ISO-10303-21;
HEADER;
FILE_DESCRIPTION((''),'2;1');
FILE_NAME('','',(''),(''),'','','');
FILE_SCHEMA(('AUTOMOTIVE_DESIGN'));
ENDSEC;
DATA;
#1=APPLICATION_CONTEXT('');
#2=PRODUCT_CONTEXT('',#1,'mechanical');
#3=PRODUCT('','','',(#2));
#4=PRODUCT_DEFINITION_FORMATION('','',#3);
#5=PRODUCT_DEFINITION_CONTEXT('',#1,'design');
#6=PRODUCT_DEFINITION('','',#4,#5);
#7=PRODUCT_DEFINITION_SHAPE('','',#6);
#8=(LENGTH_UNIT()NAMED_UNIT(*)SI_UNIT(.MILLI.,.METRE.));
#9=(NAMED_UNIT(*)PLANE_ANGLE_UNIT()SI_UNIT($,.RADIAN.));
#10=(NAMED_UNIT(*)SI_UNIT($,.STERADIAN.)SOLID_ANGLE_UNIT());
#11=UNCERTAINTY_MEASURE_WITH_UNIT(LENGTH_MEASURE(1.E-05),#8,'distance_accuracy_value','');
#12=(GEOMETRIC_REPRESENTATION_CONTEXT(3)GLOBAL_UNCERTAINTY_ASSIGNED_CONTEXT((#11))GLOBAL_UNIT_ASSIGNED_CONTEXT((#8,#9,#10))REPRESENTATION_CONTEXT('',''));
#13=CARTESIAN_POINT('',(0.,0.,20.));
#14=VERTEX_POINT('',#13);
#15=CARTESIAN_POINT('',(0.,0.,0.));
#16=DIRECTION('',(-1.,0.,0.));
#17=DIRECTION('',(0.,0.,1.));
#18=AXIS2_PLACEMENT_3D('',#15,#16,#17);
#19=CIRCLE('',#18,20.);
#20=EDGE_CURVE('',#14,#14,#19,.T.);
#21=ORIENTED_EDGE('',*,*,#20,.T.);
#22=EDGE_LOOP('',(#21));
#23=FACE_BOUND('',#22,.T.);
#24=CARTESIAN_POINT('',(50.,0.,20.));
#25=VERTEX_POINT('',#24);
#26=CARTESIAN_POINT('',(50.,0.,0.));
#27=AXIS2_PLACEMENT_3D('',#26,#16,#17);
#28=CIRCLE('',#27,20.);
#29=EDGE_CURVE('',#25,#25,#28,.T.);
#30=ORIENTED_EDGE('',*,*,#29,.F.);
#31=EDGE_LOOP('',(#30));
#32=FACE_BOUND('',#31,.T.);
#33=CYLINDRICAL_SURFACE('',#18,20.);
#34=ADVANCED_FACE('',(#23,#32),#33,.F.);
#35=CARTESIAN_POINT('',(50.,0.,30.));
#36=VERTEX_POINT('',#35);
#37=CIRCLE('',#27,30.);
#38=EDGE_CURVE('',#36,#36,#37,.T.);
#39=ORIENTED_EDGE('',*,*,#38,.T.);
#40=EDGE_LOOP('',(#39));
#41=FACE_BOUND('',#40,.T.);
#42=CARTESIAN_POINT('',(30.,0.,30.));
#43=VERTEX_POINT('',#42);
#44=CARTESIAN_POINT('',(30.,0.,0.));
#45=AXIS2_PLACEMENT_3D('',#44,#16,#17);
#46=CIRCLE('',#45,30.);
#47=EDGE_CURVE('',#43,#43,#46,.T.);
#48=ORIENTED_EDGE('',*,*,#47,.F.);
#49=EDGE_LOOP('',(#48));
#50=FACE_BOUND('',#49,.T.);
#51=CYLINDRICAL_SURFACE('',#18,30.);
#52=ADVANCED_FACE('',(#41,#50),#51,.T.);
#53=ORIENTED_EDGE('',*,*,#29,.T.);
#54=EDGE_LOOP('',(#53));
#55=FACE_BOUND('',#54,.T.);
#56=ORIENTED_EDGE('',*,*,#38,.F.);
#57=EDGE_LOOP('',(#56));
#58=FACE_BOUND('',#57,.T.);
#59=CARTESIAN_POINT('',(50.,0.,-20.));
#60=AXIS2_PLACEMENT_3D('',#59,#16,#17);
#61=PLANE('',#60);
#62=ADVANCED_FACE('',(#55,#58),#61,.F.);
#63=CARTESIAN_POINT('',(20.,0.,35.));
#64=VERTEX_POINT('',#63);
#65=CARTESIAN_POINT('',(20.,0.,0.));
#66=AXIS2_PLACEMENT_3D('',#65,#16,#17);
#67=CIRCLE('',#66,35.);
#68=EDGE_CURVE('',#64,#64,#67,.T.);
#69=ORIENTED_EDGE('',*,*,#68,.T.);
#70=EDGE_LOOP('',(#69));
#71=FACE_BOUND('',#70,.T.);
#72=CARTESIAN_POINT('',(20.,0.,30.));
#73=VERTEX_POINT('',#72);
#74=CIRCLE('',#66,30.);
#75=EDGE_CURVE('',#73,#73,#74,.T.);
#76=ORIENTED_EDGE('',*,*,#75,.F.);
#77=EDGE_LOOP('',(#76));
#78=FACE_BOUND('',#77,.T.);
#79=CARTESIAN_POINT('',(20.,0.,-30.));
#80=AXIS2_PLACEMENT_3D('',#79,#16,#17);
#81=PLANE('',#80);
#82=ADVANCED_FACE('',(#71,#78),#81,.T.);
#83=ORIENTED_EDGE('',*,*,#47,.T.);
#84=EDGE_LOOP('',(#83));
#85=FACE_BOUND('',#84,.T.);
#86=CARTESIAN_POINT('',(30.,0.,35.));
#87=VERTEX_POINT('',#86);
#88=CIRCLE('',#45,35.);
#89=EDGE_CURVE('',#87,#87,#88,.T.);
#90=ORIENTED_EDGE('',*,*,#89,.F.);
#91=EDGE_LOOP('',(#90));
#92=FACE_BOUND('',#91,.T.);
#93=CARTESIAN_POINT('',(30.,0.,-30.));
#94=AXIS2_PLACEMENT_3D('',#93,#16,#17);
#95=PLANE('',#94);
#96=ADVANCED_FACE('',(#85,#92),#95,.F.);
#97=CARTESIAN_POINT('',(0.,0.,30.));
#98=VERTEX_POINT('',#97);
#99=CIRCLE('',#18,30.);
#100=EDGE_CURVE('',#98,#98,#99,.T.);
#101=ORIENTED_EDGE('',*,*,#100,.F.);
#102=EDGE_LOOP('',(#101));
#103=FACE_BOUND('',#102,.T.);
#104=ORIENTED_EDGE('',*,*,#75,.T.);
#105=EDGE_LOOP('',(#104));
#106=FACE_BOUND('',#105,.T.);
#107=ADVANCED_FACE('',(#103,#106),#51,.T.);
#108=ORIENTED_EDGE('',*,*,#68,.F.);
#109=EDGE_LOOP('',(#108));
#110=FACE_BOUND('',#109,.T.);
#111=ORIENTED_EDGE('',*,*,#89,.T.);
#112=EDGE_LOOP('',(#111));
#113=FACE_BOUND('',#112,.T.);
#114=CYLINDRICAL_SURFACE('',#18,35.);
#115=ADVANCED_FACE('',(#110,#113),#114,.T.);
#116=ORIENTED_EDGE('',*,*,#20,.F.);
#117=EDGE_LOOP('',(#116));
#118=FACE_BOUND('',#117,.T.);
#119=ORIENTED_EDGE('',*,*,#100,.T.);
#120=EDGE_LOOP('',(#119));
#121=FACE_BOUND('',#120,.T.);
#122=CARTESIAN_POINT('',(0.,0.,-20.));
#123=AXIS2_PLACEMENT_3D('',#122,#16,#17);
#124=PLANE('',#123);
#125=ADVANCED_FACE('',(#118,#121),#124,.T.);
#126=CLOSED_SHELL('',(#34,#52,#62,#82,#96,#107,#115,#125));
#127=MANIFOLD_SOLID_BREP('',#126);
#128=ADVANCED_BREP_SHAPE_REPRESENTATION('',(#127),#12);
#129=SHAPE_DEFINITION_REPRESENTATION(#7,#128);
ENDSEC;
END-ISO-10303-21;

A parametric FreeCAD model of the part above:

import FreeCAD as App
import Part
import Sketcher
from FreeCAD import Vector


def add_polygon(sketch, points):
    """Adds a closed chain of lines whose ends are joined by coincident constraints."""
    first, n = sketch.GeometryCount, len(points)
    for a, b in zip(points, points[1:] + points[:1]):
        sketch.addGeometry(Part.LineSegment(App.Vector(*a, 0), App.Vector(*b, 0)), False)
    for i in range(n):
        sketch.addConstraint(Sketcher.Constraint("Coincident", first + i, 2, first + (i + 1) % n, 1))

doc = App.newDocument("Part")
body = doc.addObject("PartDesign::Body", "Body")

sketch1 = body.newObject("Sketcher::SketchObject", "Sketch")
sketch1.AttachmentSupport = (doc.getObject("XZ_Plane"), [""])
sketch1.MapMode = "FlatFace"
add_polygon(sketch1, [(50, -30), (30, -30), (30, -35), (20, -35), (20, -30), (0, -30), (0, -20), (50, -20)])
sketch1.addConstraint([
    Sketcher.Constraint("Horizontal", 0),
    Sketcher.Constraint("Vertical", 1),
    Sketcher.Constraint("Horizontal", 2),
    Sketcher.Constraint("Vertical", 3),
    Sketcher.Constraint("Horizontal", 4),
    Sketcher.Constraint("Vertical", 5),
    Sketcher.Constraint("Horizontal", 6),
    Sketcher.Constraint("Vertical", 7),
    Sketcher.Constraint("PointOnObject", 4, 2, -2),
    Sketcher.Constraint("Horizontal", 0, 2, 3, 2),
    Sketcher.Constraint("Equal", 0, 4),
    Sketcher.Constraint("Equal", 2, 5),
    Sketcher.Constraint("DistanceX", 0, 2, 0, 1, 20.0),
    Sketcher.Constraint("DistanceX", 2, 2, 2, 1, 10.0),
    Sketcher.Constraint("DistanceY", 1, 2, 1, 1, 5.0),
    Sketcher.Constraint("DistanceY", 0, 2, -1, 1, 30.0),
])
revolution = body.newObject("PartDesign::Revolution", "Revolution")
revolution.Profile = sketch1
revolution.ReferenceAxis = (sketch1, ["H_Axis"])
revolution.Angle = 360

doc.recompute()
